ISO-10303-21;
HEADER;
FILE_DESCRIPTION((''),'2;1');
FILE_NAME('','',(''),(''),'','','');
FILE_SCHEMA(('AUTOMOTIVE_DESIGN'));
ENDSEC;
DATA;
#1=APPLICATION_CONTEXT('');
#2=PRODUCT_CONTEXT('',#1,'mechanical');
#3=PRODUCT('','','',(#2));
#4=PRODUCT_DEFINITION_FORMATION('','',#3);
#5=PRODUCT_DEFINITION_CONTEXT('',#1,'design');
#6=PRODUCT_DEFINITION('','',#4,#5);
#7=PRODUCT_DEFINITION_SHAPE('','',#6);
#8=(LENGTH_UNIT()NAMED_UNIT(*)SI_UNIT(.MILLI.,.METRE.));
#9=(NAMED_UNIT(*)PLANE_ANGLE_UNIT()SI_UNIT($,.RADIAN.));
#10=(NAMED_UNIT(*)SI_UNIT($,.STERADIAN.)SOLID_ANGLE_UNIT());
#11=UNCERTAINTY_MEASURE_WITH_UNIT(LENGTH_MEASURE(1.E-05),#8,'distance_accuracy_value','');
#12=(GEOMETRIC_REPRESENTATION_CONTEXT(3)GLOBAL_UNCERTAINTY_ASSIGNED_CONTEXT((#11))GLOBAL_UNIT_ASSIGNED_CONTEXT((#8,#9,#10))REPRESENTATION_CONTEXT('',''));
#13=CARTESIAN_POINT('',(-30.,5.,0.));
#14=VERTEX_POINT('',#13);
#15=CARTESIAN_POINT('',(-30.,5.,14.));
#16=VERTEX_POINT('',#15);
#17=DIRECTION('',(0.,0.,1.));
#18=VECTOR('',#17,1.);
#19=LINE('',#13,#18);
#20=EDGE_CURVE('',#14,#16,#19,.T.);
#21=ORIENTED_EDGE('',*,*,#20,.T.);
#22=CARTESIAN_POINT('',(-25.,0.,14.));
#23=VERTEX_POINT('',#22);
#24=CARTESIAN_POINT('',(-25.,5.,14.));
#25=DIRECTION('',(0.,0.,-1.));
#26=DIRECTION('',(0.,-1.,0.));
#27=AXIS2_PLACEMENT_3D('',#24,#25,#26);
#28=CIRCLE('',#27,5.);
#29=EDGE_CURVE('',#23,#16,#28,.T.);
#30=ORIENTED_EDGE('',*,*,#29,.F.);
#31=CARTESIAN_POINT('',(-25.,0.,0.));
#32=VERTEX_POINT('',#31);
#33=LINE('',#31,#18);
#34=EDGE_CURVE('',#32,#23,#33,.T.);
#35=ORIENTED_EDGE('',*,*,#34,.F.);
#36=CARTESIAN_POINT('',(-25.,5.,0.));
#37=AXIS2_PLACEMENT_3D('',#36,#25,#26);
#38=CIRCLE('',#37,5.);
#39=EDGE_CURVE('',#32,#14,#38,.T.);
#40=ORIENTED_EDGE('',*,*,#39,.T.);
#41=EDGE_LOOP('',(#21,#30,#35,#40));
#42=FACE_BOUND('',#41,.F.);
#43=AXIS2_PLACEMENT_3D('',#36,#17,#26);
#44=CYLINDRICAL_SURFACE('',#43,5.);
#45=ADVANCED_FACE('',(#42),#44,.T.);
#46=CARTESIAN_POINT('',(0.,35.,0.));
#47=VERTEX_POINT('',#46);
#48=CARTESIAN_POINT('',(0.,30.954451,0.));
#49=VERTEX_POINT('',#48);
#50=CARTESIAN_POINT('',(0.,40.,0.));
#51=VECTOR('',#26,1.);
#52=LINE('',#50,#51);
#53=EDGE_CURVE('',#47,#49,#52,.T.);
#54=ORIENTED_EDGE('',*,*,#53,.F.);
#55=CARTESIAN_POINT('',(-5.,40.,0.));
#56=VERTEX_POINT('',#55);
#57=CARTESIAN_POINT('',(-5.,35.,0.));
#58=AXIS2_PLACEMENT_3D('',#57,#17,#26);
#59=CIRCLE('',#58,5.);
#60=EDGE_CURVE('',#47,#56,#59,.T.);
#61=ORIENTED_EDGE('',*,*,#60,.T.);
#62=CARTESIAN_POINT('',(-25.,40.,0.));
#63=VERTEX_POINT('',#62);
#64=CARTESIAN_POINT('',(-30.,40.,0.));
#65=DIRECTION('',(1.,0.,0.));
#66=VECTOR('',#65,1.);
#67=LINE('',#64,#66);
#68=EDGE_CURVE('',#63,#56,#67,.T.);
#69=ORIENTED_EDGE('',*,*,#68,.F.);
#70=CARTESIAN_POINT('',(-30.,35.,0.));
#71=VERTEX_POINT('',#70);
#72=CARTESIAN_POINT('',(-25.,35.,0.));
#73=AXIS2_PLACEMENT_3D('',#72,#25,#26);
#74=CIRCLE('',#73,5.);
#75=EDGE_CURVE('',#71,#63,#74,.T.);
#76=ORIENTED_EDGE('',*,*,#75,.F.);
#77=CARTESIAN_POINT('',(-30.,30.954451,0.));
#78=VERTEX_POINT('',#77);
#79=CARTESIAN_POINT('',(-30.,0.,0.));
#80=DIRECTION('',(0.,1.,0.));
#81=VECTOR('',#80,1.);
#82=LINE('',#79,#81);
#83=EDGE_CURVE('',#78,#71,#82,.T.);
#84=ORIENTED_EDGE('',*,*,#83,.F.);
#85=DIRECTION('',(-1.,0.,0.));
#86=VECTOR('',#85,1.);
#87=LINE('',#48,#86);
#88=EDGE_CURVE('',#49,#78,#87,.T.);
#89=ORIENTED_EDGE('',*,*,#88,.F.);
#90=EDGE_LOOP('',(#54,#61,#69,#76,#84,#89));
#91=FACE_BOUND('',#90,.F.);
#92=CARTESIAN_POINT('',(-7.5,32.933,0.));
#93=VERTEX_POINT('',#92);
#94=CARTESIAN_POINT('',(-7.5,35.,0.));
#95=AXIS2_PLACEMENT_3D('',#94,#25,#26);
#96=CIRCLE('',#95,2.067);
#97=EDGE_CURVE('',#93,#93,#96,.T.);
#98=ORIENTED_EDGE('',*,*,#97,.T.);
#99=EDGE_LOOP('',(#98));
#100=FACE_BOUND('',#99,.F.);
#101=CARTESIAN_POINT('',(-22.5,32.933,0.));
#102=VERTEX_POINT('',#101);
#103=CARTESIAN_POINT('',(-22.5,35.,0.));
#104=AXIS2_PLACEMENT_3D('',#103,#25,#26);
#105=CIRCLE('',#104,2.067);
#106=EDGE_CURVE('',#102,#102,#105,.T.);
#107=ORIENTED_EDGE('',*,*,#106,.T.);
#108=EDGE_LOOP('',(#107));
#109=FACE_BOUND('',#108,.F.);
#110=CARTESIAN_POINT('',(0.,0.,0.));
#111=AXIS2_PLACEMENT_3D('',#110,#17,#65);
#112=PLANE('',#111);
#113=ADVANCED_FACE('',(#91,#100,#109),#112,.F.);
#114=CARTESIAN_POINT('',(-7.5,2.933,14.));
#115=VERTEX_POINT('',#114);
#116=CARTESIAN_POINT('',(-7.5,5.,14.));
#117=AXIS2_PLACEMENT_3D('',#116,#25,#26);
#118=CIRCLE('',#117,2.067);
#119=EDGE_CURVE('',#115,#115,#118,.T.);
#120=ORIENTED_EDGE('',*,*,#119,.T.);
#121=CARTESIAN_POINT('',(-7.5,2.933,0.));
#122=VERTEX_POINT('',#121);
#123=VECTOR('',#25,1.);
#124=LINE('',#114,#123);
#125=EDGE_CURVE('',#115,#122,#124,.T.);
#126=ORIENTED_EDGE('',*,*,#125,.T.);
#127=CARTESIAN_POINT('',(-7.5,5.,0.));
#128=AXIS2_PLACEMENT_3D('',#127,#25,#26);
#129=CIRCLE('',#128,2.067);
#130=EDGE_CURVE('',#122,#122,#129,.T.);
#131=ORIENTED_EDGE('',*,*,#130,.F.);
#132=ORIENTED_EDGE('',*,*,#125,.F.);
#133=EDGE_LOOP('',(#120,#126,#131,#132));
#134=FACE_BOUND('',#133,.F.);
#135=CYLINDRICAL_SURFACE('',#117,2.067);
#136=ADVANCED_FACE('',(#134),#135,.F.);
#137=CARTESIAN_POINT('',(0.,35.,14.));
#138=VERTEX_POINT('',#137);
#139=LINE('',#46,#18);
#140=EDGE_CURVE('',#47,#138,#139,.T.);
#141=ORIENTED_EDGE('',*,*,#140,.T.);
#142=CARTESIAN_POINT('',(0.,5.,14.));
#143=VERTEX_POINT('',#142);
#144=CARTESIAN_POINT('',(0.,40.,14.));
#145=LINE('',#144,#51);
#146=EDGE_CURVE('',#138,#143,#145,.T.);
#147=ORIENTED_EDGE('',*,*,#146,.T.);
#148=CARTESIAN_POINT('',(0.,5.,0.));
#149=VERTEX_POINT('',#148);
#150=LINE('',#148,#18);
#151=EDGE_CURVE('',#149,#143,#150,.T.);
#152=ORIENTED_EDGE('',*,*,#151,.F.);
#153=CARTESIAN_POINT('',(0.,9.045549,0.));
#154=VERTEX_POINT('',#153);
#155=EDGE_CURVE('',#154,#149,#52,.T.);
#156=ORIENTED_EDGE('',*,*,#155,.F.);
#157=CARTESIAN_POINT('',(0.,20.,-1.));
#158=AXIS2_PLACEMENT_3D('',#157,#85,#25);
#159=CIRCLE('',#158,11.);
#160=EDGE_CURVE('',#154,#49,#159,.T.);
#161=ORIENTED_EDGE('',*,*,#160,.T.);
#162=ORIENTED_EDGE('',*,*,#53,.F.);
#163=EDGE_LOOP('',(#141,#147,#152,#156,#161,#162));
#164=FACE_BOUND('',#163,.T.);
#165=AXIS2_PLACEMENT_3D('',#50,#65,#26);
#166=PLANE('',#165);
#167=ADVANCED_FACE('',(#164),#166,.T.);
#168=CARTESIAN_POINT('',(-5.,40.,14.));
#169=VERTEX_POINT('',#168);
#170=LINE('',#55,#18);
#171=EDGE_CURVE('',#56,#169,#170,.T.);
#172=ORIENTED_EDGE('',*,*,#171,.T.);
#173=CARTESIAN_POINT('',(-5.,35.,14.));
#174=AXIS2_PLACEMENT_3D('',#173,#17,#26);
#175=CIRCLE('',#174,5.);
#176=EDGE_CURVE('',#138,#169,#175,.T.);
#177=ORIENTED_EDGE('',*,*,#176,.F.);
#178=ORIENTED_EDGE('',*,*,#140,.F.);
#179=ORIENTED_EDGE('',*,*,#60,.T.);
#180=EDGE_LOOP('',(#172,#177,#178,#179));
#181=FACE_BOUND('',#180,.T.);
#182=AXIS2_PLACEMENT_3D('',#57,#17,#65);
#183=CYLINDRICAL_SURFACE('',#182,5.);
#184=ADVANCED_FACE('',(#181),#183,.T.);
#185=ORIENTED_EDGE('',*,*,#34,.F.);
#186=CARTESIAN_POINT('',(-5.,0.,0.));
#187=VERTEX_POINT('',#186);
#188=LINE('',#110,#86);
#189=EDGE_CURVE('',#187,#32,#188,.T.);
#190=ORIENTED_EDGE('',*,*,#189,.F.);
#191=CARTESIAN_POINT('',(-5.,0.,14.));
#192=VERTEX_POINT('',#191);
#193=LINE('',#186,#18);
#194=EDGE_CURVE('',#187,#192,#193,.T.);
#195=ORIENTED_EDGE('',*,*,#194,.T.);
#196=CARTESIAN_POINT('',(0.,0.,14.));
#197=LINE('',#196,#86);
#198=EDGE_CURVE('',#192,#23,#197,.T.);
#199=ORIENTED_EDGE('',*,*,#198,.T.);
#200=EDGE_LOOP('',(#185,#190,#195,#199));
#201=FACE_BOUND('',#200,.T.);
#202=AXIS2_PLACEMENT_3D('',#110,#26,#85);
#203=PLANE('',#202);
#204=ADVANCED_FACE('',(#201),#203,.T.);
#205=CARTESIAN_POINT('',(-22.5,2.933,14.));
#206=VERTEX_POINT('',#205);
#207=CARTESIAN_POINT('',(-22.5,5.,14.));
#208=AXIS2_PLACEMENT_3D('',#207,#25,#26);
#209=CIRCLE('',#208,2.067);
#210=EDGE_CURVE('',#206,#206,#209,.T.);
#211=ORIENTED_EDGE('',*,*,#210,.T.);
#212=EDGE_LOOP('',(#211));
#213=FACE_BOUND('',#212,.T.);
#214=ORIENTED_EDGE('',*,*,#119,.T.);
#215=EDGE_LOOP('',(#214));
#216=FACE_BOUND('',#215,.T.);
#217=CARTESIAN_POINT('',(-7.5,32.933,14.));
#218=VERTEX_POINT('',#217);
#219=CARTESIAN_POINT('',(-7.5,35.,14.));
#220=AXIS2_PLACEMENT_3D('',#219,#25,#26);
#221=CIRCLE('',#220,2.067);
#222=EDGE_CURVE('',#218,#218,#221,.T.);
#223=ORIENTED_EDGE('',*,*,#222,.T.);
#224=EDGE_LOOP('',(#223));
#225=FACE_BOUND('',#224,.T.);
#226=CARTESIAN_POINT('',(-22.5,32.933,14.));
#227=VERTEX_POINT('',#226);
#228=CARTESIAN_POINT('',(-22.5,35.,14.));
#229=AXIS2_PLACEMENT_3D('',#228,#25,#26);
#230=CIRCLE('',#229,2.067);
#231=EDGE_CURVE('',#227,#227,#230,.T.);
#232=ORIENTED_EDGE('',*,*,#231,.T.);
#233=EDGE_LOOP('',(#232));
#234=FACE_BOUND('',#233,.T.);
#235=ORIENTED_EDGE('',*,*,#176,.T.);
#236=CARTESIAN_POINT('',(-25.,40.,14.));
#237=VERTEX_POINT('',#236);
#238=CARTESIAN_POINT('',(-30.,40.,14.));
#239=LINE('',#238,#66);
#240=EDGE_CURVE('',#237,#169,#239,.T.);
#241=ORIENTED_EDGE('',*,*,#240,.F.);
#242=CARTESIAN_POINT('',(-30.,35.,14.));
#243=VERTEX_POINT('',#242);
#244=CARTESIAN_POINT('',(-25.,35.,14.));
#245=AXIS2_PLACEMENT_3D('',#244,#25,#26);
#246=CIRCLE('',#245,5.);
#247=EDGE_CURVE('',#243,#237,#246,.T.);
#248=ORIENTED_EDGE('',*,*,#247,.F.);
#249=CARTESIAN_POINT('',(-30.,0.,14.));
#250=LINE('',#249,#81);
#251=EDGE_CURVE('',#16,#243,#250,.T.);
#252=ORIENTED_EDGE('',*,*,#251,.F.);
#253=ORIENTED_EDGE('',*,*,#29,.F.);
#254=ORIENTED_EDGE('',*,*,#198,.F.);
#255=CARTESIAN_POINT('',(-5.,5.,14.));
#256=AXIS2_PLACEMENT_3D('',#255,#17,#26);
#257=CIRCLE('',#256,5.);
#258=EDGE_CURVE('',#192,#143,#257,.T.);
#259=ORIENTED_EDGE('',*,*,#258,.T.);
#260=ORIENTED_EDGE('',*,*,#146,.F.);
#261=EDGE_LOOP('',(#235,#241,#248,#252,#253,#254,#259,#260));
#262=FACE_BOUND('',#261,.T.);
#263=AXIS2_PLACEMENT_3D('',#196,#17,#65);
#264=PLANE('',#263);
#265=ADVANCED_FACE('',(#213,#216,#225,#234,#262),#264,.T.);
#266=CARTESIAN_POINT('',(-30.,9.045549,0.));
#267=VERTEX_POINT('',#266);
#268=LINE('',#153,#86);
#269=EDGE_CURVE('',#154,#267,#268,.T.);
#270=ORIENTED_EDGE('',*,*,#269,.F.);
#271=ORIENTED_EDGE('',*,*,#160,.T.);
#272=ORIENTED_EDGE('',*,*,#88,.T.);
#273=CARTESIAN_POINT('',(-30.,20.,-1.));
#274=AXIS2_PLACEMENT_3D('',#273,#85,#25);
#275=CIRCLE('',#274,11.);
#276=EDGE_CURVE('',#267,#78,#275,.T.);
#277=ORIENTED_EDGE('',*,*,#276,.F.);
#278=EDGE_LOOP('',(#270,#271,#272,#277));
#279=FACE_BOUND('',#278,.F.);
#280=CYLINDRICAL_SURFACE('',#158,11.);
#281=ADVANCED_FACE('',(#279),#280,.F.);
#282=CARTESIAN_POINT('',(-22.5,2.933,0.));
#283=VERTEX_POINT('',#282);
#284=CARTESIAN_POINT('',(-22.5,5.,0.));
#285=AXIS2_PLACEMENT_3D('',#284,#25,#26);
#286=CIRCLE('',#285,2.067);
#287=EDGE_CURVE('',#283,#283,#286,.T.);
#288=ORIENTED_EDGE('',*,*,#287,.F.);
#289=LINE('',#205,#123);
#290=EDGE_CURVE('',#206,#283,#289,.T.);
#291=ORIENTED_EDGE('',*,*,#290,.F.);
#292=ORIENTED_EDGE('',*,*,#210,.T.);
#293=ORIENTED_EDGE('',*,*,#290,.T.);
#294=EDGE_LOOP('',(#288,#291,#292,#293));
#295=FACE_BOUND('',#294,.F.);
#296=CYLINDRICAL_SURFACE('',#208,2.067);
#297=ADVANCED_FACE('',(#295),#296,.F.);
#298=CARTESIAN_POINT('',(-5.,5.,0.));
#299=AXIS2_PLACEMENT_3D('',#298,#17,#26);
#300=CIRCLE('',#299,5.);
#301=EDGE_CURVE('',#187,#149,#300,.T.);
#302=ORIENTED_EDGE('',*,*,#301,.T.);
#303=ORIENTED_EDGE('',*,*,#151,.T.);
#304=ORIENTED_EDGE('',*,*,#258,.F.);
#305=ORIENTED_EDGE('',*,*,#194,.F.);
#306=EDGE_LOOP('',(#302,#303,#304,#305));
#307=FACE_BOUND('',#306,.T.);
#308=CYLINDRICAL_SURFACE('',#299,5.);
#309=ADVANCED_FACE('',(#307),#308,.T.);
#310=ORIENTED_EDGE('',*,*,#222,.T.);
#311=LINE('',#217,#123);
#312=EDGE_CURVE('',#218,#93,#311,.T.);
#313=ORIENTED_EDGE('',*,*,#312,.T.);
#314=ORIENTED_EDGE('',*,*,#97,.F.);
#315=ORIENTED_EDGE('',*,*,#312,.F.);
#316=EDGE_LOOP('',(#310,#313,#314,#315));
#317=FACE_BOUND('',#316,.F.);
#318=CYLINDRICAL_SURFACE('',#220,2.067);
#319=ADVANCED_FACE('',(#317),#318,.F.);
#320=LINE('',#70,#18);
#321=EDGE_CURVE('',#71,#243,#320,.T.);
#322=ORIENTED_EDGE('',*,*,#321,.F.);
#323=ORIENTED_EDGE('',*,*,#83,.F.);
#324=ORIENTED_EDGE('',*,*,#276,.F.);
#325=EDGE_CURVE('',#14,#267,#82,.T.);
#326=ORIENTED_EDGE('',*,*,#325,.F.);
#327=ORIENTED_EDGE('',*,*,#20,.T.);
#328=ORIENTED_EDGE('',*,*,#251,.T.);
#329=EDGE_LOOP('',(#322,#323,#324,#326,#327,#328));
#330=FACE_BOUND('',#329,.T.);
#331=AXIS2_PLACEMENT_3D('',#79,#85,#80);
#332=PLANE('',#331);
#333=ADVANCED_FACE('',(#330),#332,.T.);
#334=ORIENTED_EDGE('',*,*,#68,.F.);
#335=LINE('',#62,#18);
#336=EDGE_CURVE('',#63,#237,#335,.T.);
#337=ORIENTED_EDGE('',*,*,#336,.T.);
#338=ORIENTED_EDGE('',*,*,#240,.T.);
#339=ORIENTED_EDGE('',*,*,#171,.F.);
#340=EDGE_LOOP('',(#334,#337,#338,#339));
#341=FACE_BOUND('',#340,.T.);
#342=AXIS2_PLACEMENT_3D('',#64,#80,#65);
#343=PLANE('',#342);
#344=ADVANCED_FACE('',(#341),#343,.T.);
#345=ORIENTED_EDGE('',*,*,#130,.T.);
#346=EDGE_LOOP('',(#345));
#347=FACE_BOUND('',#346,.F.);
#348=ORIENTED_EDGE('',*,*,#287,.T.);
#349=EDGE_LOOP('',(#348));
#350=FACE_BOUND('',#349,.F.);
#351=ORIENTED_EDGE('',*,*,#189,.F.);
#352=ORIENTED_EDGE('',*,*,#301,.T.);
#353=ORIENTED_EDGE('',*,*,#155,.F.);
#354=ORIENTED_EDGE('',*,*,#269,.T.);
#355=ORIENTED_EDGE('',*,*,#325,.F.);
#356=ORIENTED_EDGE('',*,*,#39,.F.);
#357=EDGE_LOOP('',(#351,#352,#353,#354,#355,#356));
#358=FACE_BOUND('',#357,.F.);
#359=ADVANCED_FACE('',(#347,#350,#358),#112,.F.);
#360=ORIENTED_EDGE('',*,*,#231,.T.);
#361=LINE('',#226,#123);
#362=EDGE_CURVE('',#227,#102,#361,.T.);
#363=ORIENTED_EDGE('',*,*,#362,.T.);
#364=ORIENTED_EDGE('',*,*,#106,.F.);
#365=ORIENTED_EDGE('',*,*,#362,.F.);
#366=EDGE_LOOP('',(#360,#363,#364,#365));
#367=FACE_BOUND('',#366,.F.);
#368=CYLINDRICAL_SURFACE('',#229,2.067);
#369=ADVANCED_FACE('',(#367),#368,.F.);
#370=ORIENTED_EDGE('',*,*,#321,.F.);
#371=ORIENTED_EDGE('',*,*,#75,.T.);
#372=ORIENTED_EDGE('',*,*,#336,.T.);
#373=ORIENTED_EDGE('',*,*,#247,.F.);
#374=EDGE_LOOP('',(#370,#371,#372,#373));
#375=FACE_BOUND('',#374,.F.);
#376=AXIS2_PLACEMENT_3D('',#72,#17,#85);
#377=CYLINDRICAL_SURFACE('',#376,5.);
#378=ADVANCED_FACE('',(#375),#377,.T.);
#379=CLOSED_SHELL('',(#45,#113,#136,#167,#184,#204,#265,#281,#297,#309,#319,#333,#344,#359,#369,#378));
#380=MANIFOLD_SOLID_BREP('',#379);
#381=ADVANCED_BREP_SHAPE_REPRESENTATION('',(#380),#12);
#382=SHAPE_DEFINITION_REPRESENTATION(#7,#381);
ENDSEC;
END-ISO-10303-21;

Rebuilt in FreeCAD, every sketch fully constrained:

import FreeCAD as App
import Part
import Sketcher
Q = App.Units.Quantity


def edges_at(feature, points):
    """Names of the edges that pass closest to the given points."""
    edges = feature.Shape.Edges
    near = lambda p: min(range(len(edges)), key=lambda i: edges[i].distToShape(Part.Vertex(*p))[0])
    return sorted({f"Edge{near(p) + 1}" for p in points})

doc = App.newDocument("Part")
body = doc.addObject("PartDesign::Body", "Body")

sketch1 = body.newObject("Sketcher::SketchObject", "Sketch")
sketch1.AttachmentSupport = (doc.getObject("XY_Plane"), [""])
sketch1.MapMode = "FlatFace"
sketch1.addGeometry([
    Part.LineSegment(App.Vector(-30, 0, 0), App.Vector(0, 0, 0)),
    Part.LineSegment(App.Vector(0, 0, 0), App.Vector(0, 40, 0)),
    Part.LineSegment(App.Vector(0, 40, 0), App.Vector(-30, 40, 0)),
    Part.LineSegment(App.Vector(-30, 40, 0), App.Vector(-30, 0, 0)),
], False)
sketch1.addConstraint([
    Sketcher.Constraint("Coincident", 0, 2, 1, 1),
    Sketcher.Constraint("Coincident", 1, 2, 2, 1),
    Sketcher.Constraint("Coincident", 2, 2, 3, 1),
    Sketcher.Constraint("Coincident", 3, 2, 0, 1),
    Sketcher.Constraint("Horizontal", 0),
    Sketcher.Constraint("Vertical", 1),
    Sketcher.Constraint("Horizontal", 2),
    Sketcher.Constraint("Vertical", 3),
    Sketcher.Constraint("Coincident", 0, 2, -1, 1),
    Sketcher.Constraint("DistanceX", 0, 1, 0, 2, Q("30 mm")),
    Sketcher.Constraint("DistanceY", 1, 1, 1, 2, Q("40 mm")),
])
pad1 = body.newObject("PartDesign::Pad", "Pad")
pad1.Profile = sketch1
pad1.Length = 14

sketch2 = body.newObject("Sketcher::SketchObject", "Sketch001")
sketch2.AttachmentSupport = (doc.getObject("XY_Plane"), [""])
sketch2.MapMode = "FlatFace"
sketch2.AttachmentOffset = App.Placement(App.Vector(0, 0, 14), App.Rotation())
sketch2.addGeometry(Part.Circle(App.Vector(-22.5, 35, 0), App.Vector(0, 0, 1), 2.1), False)
sketch2.addConstraint([
    Sketcher.Constraint("Diameter", 0, Q("4.134 mm")),
    Sketcher.Constraint("DistanceY", -1, 1, 0, 3, Q("35 mm")),
    Sketcher.Constraint("DistanceX", 0, 3, -1, 1, Q("22.5 mm")),
])
doc.recompute()
hole = body.newObject("PartDesign::Hole", "Hole")
hole.Profile = sketch2
hole.ThreadType = "None"
hole.Diameter = 4.134
hole.DepthType = "Dimension"
hole.Depth = 14.2
hole.DrillPoint = "Angled"
hole.DrillPointAngle = 118

sketch3 = body.newObject("Sketcher::SketchObject", "Sketch002")
sketch3.AttachmentSupport = (doc.getObject("XY_Plane"), [""])
sketch3.MapMode = "FlatFace"
sketch3.AttachmentOffset = App.Placement(App.Vector(0, 0, 14), App.Rotation())
sketch3.addGeometry(Part.Circle(App.Vector(-7.5, 35, 0), App.Vector(0, 0, 1), 2.1), False)
sketch3.addConstraint([
    Sketcher.Constraint("Diameter", 0, Q("4.134 mm")),
    Sketcher.Constraint("DistanceY", -1, 1, 0, 3, Q("35 mm")),
    Sketcher.Constraint("DistanceX", 0, 3, -1, 1, Q("7.5 mm")),
])
doc.recompute()
hole2 = body.newObject("PartDesign::Hole", "Hole001")
hole2.Profile = sketch3
hole2.ThreadType = "None"
hole2.Diameter = 4.134
hole2.DepthType = "Dimension"
hole2.Depth = 14.2
hole2.DrillPoint = "Angled"
hole2.DrillPointAngle = 118

sketch4 = body.newObject("Sketcher::SketchObject", "Sketch003")
sketch4.AttachmentSupport = (doc.getObject("XY_Plane"), [""])
sketch4.MapMode = "FlatFace"
sketch4.AttachmentOffset = App.Placement(App.Vector(0, 0, 14), App.Rotation())
sketch4.addGeometry(Part.Circle(App.Vector(-7.5, 5, 0), App.Vector(0, 0, 1), 2.1), False)
sketch4.addConstraint([
    Sketcher.Constraint("Diameter", 0, Q("4.134 mm")),
    Sketcher.Constraint("DistanceY", -1, 1, 0, 3, Q("5 mm")),
    Sketcher.Constraint("DistanceX", 0, 3, -1, 1, Q("7.5 mm")),
])
doc.recompute()
hole3 = body.newObject("PartDesign::Hole", "Hole002")
hole3.Profile = sketch4
hole3.ThreadType = "None"
hole3.Diameter = 4.134
hole3.DepthType = "Dimension"
hole3.Depth = 14.2
hole3.DrillPoint = "Angled"
hole3.DrillPointAngle = 118

sketch5 = body.newObject("Sketcher::SketchObject", "Sketch004")
sketch5.AttachmentSupport = (doc.getObject("XY_Plane"), [""])
sketch5.MapMode = "FlatFace"
sketch5.AttachmentOffset = App.Placement(App.Vector(0, 0, 14), App.Rotation())
sketch5.addGeometry(Part.Circle(App.Vector(-22.5, 5, 0), App.Vector(0, 0, 1), 2.1), False)
sketch5.addConstraint([
    Sketcher.Constraint("Diameter", 0, Q("4.134 mm")),
    Sketcher.Constraint("DistanceY", -1, 1, 0, 3, Q("5 mm")),
    Sketcher.Constraint("DistanceX", 0, 3, -1, 1, Q("22.5 mm")),
])
doc.recompute()
hole4 = body.newObject("PartDesign::Hole", "Hole003")
hole4.Profile = sketch5
hole4.ThreadType = "None"
hole4.Diameter = 4.134
hole4.DepthType = "Dimension"
hole4.Depth = 14.2
hole4.DrillPoint = "Angled"
hole4.DrillPointAngle = 118

sketch6 = body.newObject("Sketcher::SketchObject", "Sketch005")
sketch6.AttachmentSupport = (doc.getObject("YZ_Plane"), [""])
sketch6.MapMode = "FlatFace"
sketch6.addGeometry(Part.Circle(App.Vector(20, -1, 0), App.Vector(0, 0, 1), 11), False)
sketch6.addConstraint([
    Sketcher.Constraint("Diameter", 0, Q("22 mm")),
    Sketcher.Constraint("DistanceX", -1, 1, 0, 3, Q("20 mm")),
    Sketcher.Constraint("DistanceY", 0, 3, -1, 1, Q("1 mm")),
])
doc.recompute()
hole5 = body.newObject("PartDesign::Hole", "Hole004")
hole5.Profile = sketch6
hole5.ThreadType = "None"
hole5.Diameter = 22
hole5.DepthType = "ThroughAll"
doc.recompute()

fillet = body.newObject("PartDesign::Fillet", "Fillet")
fillet.Base = (hole5, edges_at(hole5, [
    (-30, 40, 7),
    (0, 40, 7),
    (0, 0, 7),
    (-30, 0, 7),
]))
fillet.Radius = 5

doc.recompute()
